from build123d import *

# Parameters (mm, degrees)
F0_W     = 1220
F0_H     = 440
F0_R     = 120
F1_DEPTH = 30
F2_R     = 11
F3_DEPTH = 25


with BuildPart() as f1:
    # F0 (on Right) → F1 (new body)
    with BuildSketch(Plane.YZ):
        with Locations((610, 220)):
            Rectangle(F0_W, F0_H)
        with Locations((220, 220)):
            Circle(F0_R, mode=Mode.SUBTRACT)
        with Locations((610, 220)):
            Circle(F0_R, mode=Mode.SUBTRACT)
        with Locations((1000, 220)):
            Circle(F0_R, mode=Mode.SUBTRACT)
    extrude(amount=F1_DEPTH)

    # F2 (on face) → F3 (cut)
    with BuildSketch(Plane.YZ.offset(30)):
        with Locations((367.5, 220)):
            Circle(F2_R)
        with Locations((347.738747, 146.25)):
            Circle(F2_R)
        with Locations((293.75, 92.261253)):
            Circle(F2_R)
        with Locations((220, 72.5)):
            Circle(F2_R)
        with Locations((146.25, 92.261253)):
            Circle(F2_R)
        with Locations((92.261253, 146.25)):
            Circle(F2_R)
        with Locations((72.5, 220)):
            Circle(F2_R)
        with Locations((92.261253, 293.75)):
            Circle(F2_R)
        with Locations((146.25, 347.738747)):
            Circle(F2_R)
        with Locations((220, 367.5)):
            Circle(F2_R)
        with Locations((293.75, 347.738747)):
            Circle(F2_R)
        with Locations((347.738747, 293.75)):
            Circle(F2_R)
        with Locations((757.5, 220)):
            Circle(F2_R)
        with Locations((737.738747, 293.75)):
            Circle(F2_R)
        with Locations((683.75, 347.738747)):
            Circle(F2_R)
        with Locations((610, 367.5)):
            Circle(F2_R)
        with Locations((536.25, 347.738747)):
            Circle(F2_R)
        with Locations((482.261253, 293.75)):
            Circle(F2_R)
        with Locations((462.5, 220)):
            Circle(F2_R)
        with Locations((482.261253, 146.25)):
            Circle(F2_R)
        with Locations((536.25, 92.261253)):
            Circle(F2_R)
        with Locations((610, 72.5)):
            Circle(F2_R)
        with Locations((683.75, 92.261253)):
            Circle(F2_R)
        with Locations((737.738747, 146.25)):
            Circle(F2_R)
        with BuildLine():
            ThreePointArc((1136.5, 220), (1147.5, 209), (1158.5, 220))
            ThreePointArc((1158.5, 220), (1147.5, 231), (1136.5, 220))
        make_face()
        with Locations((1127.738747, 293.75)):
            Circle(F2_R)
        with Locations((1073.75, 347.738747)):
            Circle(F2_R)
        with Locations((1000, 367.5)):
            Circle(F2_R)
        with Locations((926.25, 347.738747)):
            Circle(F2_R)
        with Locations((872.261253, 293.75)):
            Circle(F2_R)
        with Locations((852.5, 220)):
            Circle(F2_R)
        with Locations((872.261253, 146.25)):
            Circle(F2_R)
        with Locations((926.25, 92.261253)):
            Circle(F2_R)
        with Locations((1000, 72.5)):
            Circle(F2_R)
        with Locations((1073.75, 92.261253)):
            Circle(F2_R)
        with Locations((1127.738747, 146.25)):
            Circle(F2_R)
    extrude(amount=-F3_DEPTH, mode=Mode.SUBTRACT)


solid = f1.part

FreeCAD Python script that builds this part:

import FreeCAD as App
import Part
import Sketcher

V = App.Vector
Q = App.Units.Quantity


def add_polygon(sketch, points):
    """Adds a closed chain of lines whose ends are joined by coincident constraints."""
    first, n = sketch.GeometryCount, len(points)
    for a, b in zip(points, points[1:] + points[:1]):
        sketch.addGeometry(Part.LineSegment(App.Vector(*a, 0), App.Vector(*b, 0)), False)
    for i in range(n):
        sketch.addConstraint(Sketcher.Constraint("Coincident", first + i, 2, first + (i + 1) % n, 1))

doc = App.newDocument("Part")
body = doc.addObject("PartDesign::Body", "Body")

sketch1 = body.newObject("Sketcher::SketchObject", "Sketch")
sketch1.AttachmentSupport = (doc.getObject("YZ_Plane"), [""])
sketch1.MapMode = "FlatFace"
add_polygon(sketch1, [(0, 440), (0, 0), (1220, 0), (1220, 440)])
sketch1.addGeometry(Part.Circle(V(220, 220, 0), V(0, 0, 1), 120), False)
sketch1.addGeometry(Part.Circle(V(610, 220, 0), V(0, 0, 1), 120), False)
sketch1.addGeometry(Part.Circle(V(1000, 220, 0), V(0, 0, 1), 120), False)
sketch1.addConstraint([
    Sketcher.Constraint("Vertical", 0),
    Sketcher.Constraint("Horizontal", 1),
    Sketcher.Constraint("Vertical", 2),
    Sketcher.Constraint("Horizontal", 3),
    Sketcher.Constraint("Coincident", 0, 2, -1, 1),
    Sketcher.Constraint("Equal", 4, 5),
    Sketcher.Constraint("Equal", 5, 6),
    Sketcher.Constraint("Horizontal", 4, 3, 5, 3),
    Sketcher.Constraint("Horizontal", 5, 3, 6, 3),
    Sketcher.Constraint("Diameter", 4, Q("240 mm")),
    Sketcher.Constraint("DistanceX", 1, 1, 1, 2, Q("1220 mm")),
    Sketcher.Constraint("DistanceY", 0, 2, 0, 1, Q("440 mm")),
    Sketcher.Constraint("DistanceX", -1, 1, 4, 3, Q("220 mm")),
    Sketcher.Constraint("DistanceY", -1, 1, 4, 3, Q("220 mm")),
    Sketcher.Constraint("DistanceX", -1, 1, 5, 3, Q("610 mm")),
    Sketcher.Constraint("DistanceX", -1, 1, 6, 3, Q("1000 mm")),
])
pad1 = body.newObject("PartDesign::Pad", "Pad")
pad1.Profile = sketch1
pad1.Length = 30

sketch2 = body.newObject("Sketcher::SketchObject", "Sketch001")
sketch2.AttachmentSupport = (doc.getObject("YZ_Plane"), [""])
sketch2.MapMode = "FlatFace"
sketch2.AttachmentOffset = App.Placement(V(0, 0, 30), App.Rotation())
sketch2.addGeometry([
    Part.Circle(V(368, 220, 0), V(0, 0, 1), 11),
    Part.Circle(V(348, 146, 0), V(0, 0, 1), 11),
    Part.Circle(V(294, 92, 0), V(0, 0, 1), 11),
    Part.Circle(V(220, 72, 0), V(0, 0, 1), 11),
    Part.Circle(V(146, 92, 0), V(0, 0, 1), 11),
    Part.Circle(V(92, 146, 0), V(0, 0, 1), 11),
    Part.Circle(V(72, 220, 0), V(0, 0, 1), 11),
    Part.Circle(V(92, 294, 0), V(0, 0, 1), 11),
    Part.Circle(V(146, 348, 0), V(0, 0, 1), 11),
    Part.Circle(V(220, 368, 0), V(0, 0, 1), 11),
    Part.Circle(V(294, 348, 0), V(0, 0, 1), 11),
    Part.Circle(V(348, 294, 0), V(0, 0, 1), 11),
    Part.Circle(V(758, 220, 0), V(0, 0, 1), 11),
    Part.Circle(V(738, 294, 0), V(0, 0, 1), 11),
    Part.Circle(V(684, 348, 0), V(0, 0, 1), 11),
    Part.Circle(V(610, 368, 0), V(0, 0, 1), 11),
    Part.Circle(V(536, 348, 0), V(0, 0, 1), 11),
    Part.Circle(V(482, 294, 0), V(0, 0, 1), 11),
    Part.Circle(V(462, 220, 0), V(0, 0, 1), 11),
    Part.Circle(V(482, 146, 0), V(0, 0, 1), 11),
    Part.Circle(V(536, 92, 0), V(0, 0, 1), 11),
    Part.Circle(V(610, 72, 0), V(0, 0, 1), 11),
    Part.Circle(V(684, 92, 0), V(0, 0, 1), 11),
    Part.Circle(V(738, 146, 0), V(0, 0, 1), 11),
    Part.Circle(V(1148, 220, 0), V(0, 0, 1), 11),
    Part.Circle(V(1128, 294, 0), V(0, 0, 1), 11),
    Part.Circle(V(1074, 348, 0), V(0, 0, 1), 11),
    Part.Circle(V(1000, 368, 0), V(0, 0, 1), 11),
    Part.Circle(V(926, 348, 0), V(0, 0, 1), 11),
    Part.Circle(V(872, 294, 0), V(0, 0, 1), 11),
    Part.Circle(V(852, 220, 0), V(0, 0, 1), 11),
    Part.Circle(V(872, 146, 0), V(0, 0, 1), 11),
    Part.Circle(V(926, 92, 0), V(0, 0, 1), 11),
    Part.Circle(V(1000, 72, 0), V(0, 0, 1), 11),
    Part.Circle(V(1074, 92, 0), V(0, 0, 1), 11),
    Part.Circle(V(1128, 146, 0), V(0, 0, 1), 11),
], False)
sketch2.addConstraint([
    Sketcher.Constraint("Equal", 0, 1),
    Sketcher.Constraint("Equal", 1, 2),
    Sketcher.Constraint("Equal", 2, 3),
    Sketcher.Constraint("Equal", 3, 4),
    Sketcher.Constraint("Equal", 4, 5),
    Sketcher.Constraint("Equal", 5, 6),
    Sketcher.Constraint("Equal", 6, 7),
    Sketcher.Constraint("Equal", 7, 8),
    Sketcher.Constraint("Equal", 8, 9),
    Sketcher.Constraint("Equal", 9, 10),
    Sketcher.Constraint("Equal", 10, 11),
    Sketcher.Constraint("Equal", 11, 12),
    Sketcher.Constraint("Equal", 12, 13),
    Sketcher.Constraint("Equal", 13, 14),
    Sketcher.Constraint("Equal", 14, 15),
    Sketcher.Constraint("Equal", 15, 16),
    Sketcher.Constraint("Equal", 16, 17),
    Sketcher.Constraint("Equal", 17, 18),
    Sketcher.Constraint("Equal", 18, 19),
    Sketcher.Constraint("Equal", 19, 20),
    Sketcher.Constraint("Equal", 20, 21),
    Sketcher.Constraint("Equal", 21, 22),
    Sketcher.Constraint("Equal", 22, 23),
    Sketcher.Constraint("Equal", 23, 24),
    Sketcher.Constraint("Equal", 24, 25),
    Sketcher.Constraint("Equal", 25, 26),
    Sketcher.Constraint("Equal", 26, 27),
    Sketcher.Constraint("Equal", 27, 28),
    Sketcher.Constraint("Equal", 28, 29),
    Sketcher.Constraint("Equal", 29, 30),
    Sketcher.Constraint("Equal", 30, 31),
    Sketcher.Constraint("Equal", 31, 32),
    Sketcher.Constraint("Equal", 32, 33),
    Sketcher.Constraint("Equal", 33, 34),
    Sketcher.Constraint("Equal", 34, 35),
    Sketcher.Constraint("Horizontal", 2, 3, 4, 3),
    Sketcher.Constraint("Horizontal", 1, 3, 5, 3),
    Sketcher.Constraint("Horizontal", 0, 3, 6, 3),
    Sketcher.Constraint("Horizontal", 8, 3, 10, 3),
    Sketcher.Constraint("Horizontal", 7, 3, 11, 3),
    Sketcher.Constraint("Horizontal", 6, 3, 12, 3),
    Sketcher.Constraint("Horizontal", 11, 3, 13, 3),
    Sketcher.Constraint("Horizontal", 10, 3, 14, 3),
    Sketcher.Constraint("Horizontal", 9, 3, 15, 3),
    Sketcher.Constraint("Horizontal", 14, 3, 16, 3),
    Sketcher.Constraint("Horizontal", 13, 3, 17, 3),
    Sketcher.Constraint("Horizontal", 12, 3, 18, 3),
    Sketcher.Constraint("Horizontal", 5, 3, 19, 3),
    Sketcher.Constraint("Horizontal", 4, 3, 20, 3),
    Sketcher.Constraint("Horizontal", 3, 3, 21, 3),
    Sketcher.Constraint("Horizontal", 20, 3, 22, 3),
    Sketcher.Constraint("Horizontal", 19, 3, 23, 3),
    Sketcher.Constraint("Horizontal", 18, 3, 24, 3),
    Sketcher.Constraint("Horizontal", 17, 3, 25, 3),
    Sketcher.Constraint("Horizontal", 16, 3, 26, 3),
    Sketcher.Constraint("Horizontal", 15, 3, 27, 3),
    Sketcher.Constraint("Horizontal", 26, 3, 28, 3),
    Sketcher.Constraint("Horizontal", 25, 3, 29, 3),
    Sketcher.Constraint("Horizontal", 24, 3, 30, 3),
    Sketcher.Constraint("Horizontal", 23, 3, 31, 3),
    Sketcher.Constraint("Horizontal", 22, 3, 32, 3),
    Sketcher.Constraint("Horizontal", 21, 3, 33, 3),
    Sketcher.Constraint("Horizontal", 32, 3, 34, 3),
    Sketcher.Constraint("Horizontal", 31, 3, 35, 3),
    Sketcher.Constraint("Vertical", 5, 3, 7, 3),
    Sketcher.Constraint("Vertical", 4, 3, 8, 3),
    Sketcher.Constraint("Vertical", 3, 3, 9, 3),
    Sketcher.Constraint("Vertical", 2, 3, 10, 3),
    Sketcher.Constraint("Vertical", 1, 3, 11, 3),
    Sketcher.Constraint("Vertical", 17, 3, 19, 3),
    Sketcher.Constraint("Vertical", 16, 3, 20, 3),
    Sketcher.Constraint("Vertical", 15, 3, 21, 3),
    Sketcher.Constraint("Vertical", 14, 3, 22, 3),
    Sketcher.Constraint("Vertical", 13, 3, 23, 3),
    Sketcher.Constraint("Vertical", 29, 3, 31, 3),
    Sketcher.Constraint("Vertical", 28, 3, 32, 3),
    Sketcher.Constraint("Vertical", 27, 3, 33, 3),
    Sketcher.Constraint("Vertical", 26, 3, 34, 3),
    Sketcher.Constraint("Vertical", 25, 3, 35, 3),
    Sketcher.Constraint("Diameter", 0, Q("22 mm")),
    Sketcher.Constraint("DistanceY", -1, 1, 0, 3, Q("220 mm")),
    Sketcher.Constraint("DistanceX", -1, 1, 3, 3, Q("220 mm")),
    Sketcher.Constraint("DistanceX", -1, 1, 15, 3, Q("610 mm")),
    Sketcher.Constraint("DistanceX", -1, 1, 27, 3, Q("1000 mm")),
    Sketcher.Constraint("DistanceX", 0, 3, 12, 3, Q("390 mm")),
    Sketcher.Constraint("DistanceX", 11, 3, 13, 3, Q("390 mm")),
    Sketcher.Constraint("DistanceX", 10, 3, 14, 3, Q("390 mm")),
    Sketcher.Constraint("DistanceX", 0, 3, 18, 3, Q("95 mm")),
    Sketcher.Constraint("DistanceX", 12, 3, 24, 3, Q("390 mm")),
    Sketcher.Constraint("DistanceX", 13, 3, 25, 3, Q("390 mm")),
    Sketcher.Constraint("DistanceX", 14, 3, 26, 3, Q("390 mm")),
    Sketcher.Constraint("DistanceX", 12, 3, 30, 3, Q("95 mm")),
    Sketcher.Constraint("DistanceX", -1, 1, 0, 3, Q("367.5 mm")),
    Sketcher.Constraint("DistanceY", -1, 1, 3, 3, Q("72.5 mm")),
    Sketcher.Constraint("DistanceX", -1, 1, 6, 3, Q("72.5 mm")),
    Sketcher.Constraint("DistanceY", -1, 1, 9, 3, Q("367.5 mm")),
    Sketcher.Constraint("DistanceX", 4, 3, 2, 3, Q("147.5 mm")),
    Sketcher.Constraint("DistanceY", 5, 3, 7, 3, Q("147.5 mm")),
    Sketcher.Constraint("DistanceX", 16, 3, 14, 3, Q("147.5 mm")),
    Sketcher.Constraint("DistanceX", 28, 3, 26, 3, Q("147.5 mm")),
    Sketcher.Constraint("DistanceY", -1, 1, 1, 3, Q("146.25 mm")),
    Sketcher.Constraint("DistanceX", -1, 1, 2, 3, Q("293.75 mm")),
    Sketcher.Constraint("DistanceX", -1, 1, 1, 3, Q("347.738747 mm")),
    Sketcher.Constraint("DistanceY", -1, 1, 2, 3, Q("92.261253 mm")),
    Sketcher.Constraint("DistanceX", -1, 1, 5, 3, Q("92.261253 mm")),
    Sketcher.Constraint("DistanceY", -1, 1, 8, 3, Q("347.738747 mm")),
    Sketcher.Constraint("DistanceX", -1, 1, 17, 3, Q("482.261253 mm")),
    Sketcher.Constraint("DistanceX", -1, 1, 29, 3, Q("872.261253 mm")),
])
pocket1 = body.newObject("PartDesign::Pocket", "Pocket")
pocket1.Profile = sketch2
pocket1.Length = 25

doc.recompute()
